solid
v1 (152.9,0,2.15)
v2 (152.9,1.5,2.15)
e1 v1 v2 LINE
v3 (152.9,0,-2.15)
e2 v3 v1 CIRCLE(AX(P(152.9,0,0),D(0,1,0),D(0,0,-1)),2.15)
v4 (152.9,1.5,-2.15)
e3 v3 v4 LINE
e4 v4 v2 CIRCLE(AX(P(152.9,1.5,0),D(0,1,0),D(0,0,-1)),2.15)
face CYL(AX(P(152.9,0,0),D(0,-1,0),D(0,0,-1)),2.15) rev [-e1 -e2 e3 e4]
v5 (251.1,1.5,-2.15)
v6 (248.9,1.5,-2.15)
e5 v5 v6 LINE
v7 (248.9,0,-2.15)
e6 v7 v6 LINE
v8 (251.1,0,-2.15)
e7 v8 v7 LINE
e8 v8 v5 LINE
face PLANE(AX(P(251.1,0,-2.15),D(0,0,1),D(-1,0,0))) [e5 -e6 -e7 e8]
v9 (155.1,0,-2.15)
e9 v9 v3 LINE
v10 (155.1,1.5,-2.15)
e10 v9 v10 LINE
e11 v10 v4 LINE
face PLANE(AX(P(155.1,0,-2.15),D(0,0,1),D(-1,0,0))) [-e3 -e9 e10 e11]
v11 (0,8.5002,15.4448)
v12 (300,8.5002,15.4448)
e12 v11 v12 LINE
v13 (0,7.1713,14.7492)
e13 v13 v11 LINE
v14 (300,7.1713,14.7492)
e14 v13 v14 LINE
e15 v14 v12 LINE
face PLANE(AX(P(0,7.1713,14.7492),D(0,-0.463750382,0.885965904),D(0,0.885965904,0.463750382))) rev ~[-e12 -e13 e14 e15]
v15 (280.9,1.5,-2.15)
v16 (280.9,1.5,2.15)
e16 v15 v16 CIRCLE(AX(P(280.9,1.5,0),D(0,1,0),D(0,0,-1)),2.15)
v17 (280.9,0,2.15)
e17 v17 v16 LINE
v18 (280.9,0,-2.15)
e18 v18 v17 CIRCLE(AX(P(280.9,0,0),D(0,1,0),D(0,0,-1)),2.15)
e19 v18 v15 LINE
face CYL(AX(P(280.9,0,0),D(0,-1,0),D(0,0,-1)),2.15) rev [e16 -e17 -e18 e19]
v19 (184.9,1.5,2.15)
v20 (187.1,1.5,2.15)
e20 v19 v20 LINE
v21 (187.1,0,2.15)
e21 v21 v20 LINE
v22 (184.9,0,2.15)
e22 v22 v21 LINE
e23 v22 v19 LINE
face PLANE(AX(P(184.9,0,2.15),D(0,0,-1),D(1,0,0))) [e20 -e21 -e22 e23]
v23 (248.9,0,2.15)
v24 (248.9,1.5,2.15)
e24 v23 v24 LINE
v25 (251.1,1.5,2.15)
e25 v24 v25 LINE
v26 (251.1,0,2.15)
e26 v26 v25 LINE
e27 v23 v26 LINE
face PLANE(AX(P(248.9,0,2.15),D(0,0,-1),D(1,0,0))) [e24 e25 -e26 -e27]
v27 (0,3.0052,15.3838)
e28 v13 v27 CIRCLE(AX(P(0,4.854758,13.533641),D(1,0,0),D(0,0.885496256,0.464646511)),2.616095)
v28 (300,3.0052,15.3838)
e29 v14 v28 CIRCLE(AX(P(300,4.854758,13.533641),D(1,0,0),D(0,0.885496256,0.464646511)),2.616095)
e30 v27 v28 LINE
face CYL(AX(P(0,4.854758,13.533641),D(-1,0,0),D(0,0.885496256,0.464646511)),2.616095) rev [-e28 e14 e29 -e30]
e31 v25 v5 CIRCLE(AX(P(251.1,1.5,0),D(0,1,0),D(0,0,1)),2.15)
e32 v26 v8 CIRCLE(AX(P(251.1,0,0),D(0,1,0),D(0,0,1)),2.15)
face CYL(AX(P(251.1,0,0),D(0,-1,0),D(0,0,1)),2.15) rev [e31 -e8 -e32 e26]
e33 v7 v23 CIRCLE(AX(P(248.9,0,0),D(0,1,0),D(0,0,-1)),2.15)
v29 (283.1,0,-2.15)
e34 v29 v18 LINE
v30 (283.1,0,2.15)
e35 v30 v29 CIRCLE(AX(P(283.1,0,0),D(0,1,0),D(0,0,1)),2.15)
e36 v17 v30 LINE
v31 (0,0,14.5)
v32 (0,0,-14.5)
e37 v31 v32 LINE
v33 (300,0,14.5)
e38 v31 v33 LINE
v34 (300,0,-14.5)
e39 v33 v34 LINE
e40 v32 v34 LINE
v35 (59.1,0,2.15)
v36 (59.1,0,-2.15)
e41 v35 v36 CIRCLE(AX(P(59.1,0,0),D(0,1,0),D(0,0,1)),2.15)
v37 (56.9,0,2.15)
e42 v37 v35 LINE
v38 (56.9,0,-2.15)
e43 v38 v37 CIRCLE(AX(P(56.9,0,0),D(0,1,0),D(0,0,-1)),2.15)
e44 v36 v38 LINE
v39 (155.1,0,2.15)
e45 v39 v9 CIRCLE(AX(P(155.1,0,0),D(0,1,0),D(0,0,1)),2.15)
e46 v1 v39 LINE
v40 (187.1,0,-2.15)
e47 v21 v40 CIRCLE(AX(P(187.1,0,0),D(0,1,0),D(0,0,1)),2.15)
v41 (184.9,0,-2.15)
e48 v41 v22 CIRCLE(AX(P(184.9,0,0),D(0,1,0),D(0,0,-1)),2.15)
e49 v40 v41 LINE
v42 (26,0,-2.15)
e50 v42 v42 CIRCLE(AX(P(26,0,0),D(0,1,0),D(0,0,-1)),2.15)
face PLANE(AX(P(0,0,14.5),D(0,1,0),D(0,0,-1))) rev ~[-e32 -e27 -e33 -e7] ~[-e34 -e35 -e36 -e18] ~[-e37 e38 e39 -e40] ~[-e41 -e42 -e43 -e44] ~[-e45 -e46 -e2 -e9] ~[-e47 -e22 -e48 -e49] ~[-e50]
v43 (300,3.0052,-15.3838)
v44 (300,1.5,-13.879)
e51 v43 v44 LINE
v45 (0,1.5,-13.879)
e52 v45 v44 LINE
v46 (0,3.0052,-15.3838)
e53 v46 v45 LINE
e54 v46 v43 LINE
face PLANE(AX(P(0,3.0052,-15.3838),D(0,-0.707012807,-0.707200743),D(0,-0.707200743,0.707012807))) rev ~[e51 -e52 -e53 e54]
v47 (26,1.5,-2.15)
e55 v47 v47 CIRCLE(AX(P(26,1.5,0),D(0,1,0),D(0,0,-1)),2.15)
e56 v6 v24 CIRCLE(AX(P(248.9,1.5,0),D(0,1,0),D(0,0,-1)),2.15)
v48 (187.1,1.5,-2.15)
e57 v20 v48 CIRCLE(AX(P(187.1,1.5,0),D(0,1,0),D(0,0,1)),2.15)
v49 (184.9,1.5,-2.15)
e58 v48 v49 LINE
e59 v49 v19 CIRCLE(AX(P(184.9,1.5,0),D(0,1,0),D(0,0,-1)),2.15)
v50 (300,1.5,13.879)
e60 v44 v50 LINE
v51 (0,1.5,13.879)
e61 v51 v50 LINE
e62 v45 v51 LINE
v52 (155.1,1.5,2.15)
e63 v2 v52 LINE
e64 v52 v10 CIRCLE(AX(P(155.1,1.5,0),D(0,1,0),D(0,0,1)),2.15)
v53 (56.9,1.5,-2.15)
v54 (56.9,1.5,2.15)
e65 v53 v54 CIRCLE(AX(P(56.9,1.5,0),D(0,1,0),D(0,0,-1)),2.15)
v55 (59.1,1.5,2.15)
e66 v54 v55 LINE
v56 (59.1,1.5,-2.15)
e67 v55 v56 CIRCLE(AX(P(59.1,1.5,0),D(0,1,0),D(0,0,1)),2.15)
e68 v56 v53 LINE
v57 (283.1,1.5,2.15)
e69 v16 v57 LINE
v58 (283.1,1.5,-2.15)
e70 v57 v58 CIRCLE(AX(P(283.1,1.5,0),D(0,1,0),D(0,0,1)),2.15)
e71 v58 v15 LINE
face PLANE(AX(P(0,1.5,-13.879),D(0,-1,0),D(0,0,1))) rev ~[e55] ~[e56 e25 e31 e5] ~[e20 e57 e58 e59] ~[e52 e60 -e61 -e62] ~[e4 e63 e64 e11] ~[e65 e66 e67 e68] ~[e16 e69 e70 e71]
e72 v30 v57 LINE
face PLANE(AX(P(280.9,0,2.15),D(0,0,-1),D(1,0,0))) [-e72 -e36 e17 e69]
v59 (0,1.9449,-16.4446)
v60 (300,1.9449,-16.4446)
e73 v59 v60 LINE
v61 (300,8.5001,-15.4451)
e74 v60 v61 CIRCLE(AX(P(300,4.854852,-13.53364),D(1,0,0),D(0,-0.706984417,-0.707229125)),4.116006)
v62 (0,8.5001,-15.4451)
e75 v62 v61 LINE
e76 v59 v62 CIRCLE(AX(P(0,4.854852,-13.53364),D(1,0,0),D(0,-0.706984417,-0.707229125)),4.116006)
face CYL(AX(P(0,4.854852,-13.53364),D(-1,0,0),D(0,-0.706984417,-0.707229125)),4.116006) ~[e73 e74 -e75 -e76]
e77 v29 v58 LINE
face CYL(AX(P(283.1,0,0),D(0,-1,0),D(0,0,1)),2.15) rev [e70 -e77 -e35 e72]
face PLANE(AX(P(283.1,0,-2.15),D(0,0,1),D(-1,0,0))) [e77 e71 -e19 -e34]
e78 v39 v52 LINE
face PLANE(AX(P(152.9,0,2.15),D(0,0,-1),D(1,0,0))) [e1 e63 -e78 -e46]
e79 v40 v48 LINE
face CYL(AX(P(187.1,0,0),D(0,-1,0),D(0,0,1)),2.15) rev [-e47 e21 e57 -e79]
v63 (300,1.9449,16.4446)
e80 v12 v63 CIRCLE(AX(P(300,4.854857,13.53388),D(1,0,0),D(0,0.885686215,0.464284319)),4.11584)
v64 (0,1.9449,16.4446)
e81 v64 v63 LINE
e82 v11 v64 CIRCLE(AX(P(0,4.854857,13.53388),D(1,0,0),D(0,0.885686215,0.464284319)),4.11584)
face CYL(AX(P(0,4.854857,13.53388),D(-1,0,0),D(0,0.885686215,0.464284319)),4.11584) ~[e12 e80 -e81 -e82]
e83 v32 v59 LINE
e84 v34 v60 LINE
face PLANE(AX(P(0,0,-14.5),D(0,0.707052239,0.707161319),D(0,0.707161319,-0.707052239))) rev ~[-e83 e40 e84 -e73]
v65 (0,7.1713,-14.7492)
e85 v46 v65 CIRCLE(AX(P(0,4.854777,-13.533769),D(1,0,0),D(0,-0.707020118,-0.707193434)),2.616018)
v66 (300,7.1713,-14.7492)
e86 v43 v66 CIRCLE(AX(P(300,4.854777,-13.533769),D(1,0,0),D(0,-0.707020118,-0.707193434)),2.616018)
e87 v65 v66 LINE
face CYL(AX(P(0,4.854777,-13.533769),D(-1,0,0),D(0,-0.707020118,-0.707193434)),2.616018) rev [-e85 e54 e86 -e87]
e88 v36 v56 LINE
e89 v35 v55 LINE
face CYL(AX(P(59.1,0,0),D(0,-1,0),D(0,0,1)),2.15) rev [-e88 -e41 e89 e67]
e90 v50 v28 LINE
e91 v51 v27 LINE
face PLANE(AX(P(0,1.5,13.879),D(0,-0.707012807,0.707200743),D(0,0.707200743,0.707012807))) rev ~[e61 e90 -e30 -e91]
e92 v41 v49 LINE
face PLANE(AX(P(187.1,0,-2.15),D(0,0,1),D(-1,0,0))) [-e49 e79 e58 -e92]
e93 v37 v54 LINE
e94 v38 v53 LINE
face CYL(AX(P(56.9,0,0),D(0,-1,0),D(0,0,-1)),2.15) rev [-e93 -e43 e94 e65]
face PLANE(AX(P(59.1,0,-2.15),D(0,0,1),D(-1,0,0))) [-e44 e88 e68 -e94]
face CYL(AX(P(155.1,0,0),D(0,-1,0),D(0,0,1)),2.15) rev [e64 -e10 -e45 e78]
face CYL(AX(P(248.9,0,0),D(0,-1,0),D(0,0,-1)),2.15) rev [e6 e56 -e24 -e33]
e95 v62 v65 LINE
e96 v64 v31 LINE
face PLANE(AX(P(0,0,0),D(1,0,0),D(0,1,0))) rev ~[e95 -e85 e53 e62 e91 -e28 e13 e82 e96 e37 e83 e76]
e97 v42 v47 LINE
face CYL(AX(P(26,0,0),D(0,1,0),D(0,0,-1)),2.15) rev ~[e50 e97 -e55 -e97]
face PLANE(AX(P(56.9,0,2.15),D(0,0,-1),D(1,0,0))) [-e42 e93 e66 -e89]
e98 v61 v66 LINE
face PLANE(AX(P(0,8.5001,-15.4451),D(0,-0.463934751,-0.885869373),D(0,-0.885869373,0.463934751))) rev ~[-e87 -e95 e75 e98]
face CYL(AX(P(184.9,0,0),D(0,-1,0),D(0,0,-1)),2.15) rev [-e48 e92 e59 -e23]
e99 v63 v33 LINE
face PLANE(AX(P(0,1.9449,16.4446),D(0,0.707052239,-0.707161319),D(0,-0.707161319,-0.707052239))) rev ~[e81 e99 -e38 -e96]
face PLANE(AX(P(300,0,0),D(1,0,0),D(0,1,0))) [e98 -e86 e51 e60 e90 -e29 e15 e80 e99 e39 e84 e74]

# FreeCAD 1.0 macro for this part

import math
import FreeCAD as App
import Part
import Sketcher
from FreeCAD import Vector

doc = App.newDocument("Part")
body = doc.addObject("PartDesign::Body", "Body")

sketch1 = doc.addObject("Sketcher::SketchObject", "Sketch")
body.addObject(sketch1)
sketch1.AttachmentSupport = (doc.YZ_Plane, [""])
sketch1.MapMode = "FlatFace"
sketch1.addGeometry([
    Part.LineSegment(Vector(7.1713, 14.7492, 0), Vector(8.5002, 15.4448, 0)),
    Part.ArcOfCircle(Part.Circle(Vector(4.8548, 13.5338, 0), Vector(0, 0, 1), 4.115928), math.radians(27.664531), math.radians(134.991141)),
    Part.LineSegment(Vector(1.9449, 16.4446, 0), Vector(0, 14.5, 0)),
    Part.LineSegment(Vector(0, 14.5, 0), Vector(0, -14.5, 0)),
    Part.LineSegment(Vector(0, -14.5, 0), Vector(1.9449, -16.4446, 0)),
    Part.ArcOfCircle(Part.Circle(Vector(4.8548, -13.5338, 0), Vector(0, 0, 1), 4.115856), math.radians(-134.991141), math.radians(-27.668876)),
    Part.LineSegment(Vector(8.5001, -15.4451, 0), Vector(7.1713, -14.7492, 0)),
    Part.ArcOfCircle(Part.Circle(Vector(4.8548, -13.5337, 0), Vector(0, 0, 1), 2.616083), math.radians(-134.992257), math.radians(-27.686626)),
    Part.LineSegment(Vector(3.0052, -15.3838, 0), Vector(1.5, -13.879, 0)),
    Part.LineSegment(Vector(1.5, -13.879, 0), Vector(1.5, 13.879, 0)),
    Part.LineSegment(Vector(1.5, 13.879, 0), Vector(3.0052, 15.3838, 0)),
    Part.ArcOfCircle(Part.Circle(Vector(4.8548, 13.5337, 0), Vector(0, 0, 1), 2.61603), math.radians(27.686626), math.radians(134.992257)),
], False)
sketch1.addConstraint([
    Sketcher.Constraint("Coincident", 0, 2, 1, 1),
    Sketcher.Constraint("Coincident", 1, 2, 2, 1),
    Sketcher.Constraint("Coincident", 2, 2, 3, 1),
    Sketcher.Constraint("Coincident", 3, 2, 4, 1),
    Sketcher.Constraint("Coincident", 4, 2, 5, 1),
    Sketcher.Constraint("Coincident", 5, 2, 6, 1),
    Sketcher.Constraint("Coincident", 6, 2, 7, 2),
    Sketcher.Constraint("Coincident", 7, 1, 8, 1),
    Sketcher.Constraint("Coincident", 8, 2, 9, 1),
    Sketcher.Constraint("Coincident", 9, 2, 10, 1),
    Sketcher.Constraint("Coincident", 10, 2, 11, 2),
    Sketcher.Constraint("Coincident", 11, 1, 0, 1),
    Sketcher.Constraint("Vertical", 3),
    Sketcher.Constraint("Vertical", 9),
    Sketcher.Constraint("Coincident", 7, 3, 5, 3),
    Sketcher.Constraint("Coincident", 11, 3, 1, 3),
    Sketcher.Constraint("PointOnObject", 2, 2, -2),
    Sketcher.Constraint("DistanceY", 3, 2, 3, 1, 29.0),
    Sketcher.Constraint("Radius", 1, 4.116),
    Sketcher.Constraint("Radius", 7, 2.616),
    Sketcher.Constraint("Radius", 11, 2.616),
    Sketcher.Constraint("Distance", 6, 1.5),
    Sketcher.Constraint("DistanceY", -1, 1, 2, 2, 14.5),
    Sketcher.Constraint("DistanceX", -1, 1, 5, 2, 8.5),
    Sketcher.Constraint("DistanceX", -1, 1, 8, 2, 1.5),
    Sketcher.Constraint("DistanceY", 9, 1, 9, 2, 27.758),
    Sketcher.Constraint("DistanceX", 1, 2, 1, 3, 2.91),
    Sketcher.Constraint("DistanceX", 1, 2, 7, 3, 2.91),
    Sketcher.Constraint("DistanceX", 4, 2, 5, 3, 2.91),
    Sketcher.Constraint("DistanceY", 7, 1, 5, 3, 1.85),
    Sketcher.Constraint("DistanceY", 1, 3, 10, 2, 1.85),
    Sketcher.Constraint("DistanceX", -1, 1, 4, 2, 1.945),
    Sketcher.Constraint("DistanceY", 5, 2, -1, 1, 15.445),
    Sketcher.Constraint("DistanceY", 8, 2, -1, 1, 13.879),
    Sketcher.Constraint("DistanceY", 1, 3, 0, 2, 1.911),
    Sketcher.Constraint("DistanceX", 7, 1, 6, 2, 4.166),
    Sketcher.Constraint("DistanceX", 11, 1, 0, 2, 1.329),
    Sketcher.Constraint("Distance", 2, 2.7503),
])
pad1 = doc.addObject("PartDesign::Pad", "Pad")
body.addObject(pad1)
pad1.Profile = sketch1
pad1.Length = 300

sketch2 = doc.addObject("Sketcher::SketchObject", "Sketch001")
body.addObject(sketch2)
sketch2.AttachmentSupport = (doc.XZ_Plane, [""])
sketch2.MapMode = "FlatFace"
sketch2.addGeometry(Part.Circle(Vector(26, 0, 0), Vector(0, 0, 1), 2.1), False)
sketch2.addConstraint([
    Sketcher.Constraint("PointOnObject", 0, 3, -1),
    Sketcher.Constraint("Diameter", 0, 4.3),
    Sketcher.Constraint("DistanceX", -1, 1, 0, 3, 26.0),
])
doc.recompute()
hole = doc.addObject("PartDesign::Hole", "Hole")
body.addObject(hole)
hole.Profile = sketch2
hole.ThreadType = "None"
hole.Diameter = 4.3
hole.DepthType = "Dimension"
hole.Depth = 1.5
hole.DrillPoint = "Flat"

sketch3 = doc.addObject("Sketcher::SketchObject", "Sketch002")
body.addObject(sketch3)
sketch3.AttachmentSupport = (doc.XZ_Plane, [""])
sketch3.MapMode = "FlatFace"
sketch3.addGeometry([
    Part.LineSegment(Vector(59.1, -2.1, 0), Vector(56.9, -2.1, 0)),
    Part.ArcOfCircle(Part.Circle(Vector(56.9, 0, 0), Vector(0, 0, 1), 2.1), math.radians(90), math.radians(270)),
    Part.LineSegment(Vector(56.9, 2.1, 0), Vector(59.1, 2.1, 0)),
    Part.ArcOfCircle(Part.Circle(Vector(59.1, 0, 0), Vector(0, 0, 1), 2.1), math.radians(-90), math.radians(90)),
], False)
sketch3.addConstraint([
    Sketcher.Constraint("Tangent", 0, 2, 1, 2),
    Sketcher.Constraint("Tangent", 1, 1, 2, 1),
    Sketcher.Constraint("Tangent", 2, 2, 3, 2),
    Sketcher.Constraint("Tangent", 3, 1, 0, 1),
    Sketcher.Constraint("Horizontal", 0),
    Sketcher.Constraint("Horizontal", 2),
    Sketcher.Constraint("PointOnObject", 1, 3, -1),
    Sketcher.Constraint("Radius", 1, 2.15),
    Sketcher.Constraint("DistanceX", 0, 2, 0, 1, 2.2),
    Sketcher.Constraint("DistanceX", -1, 1, 1, 3, 56.9),
])
pocket1 = doc.addObject("PartDesign::Pocket", "Pocket")
body.addObject(pocket1)
pocket1.Profile = sketch3
pocket1.Length = 1.5

sketch4 = doc.addObject("Sketcher::SketchObject", "Sketch003")
body.addObject(sketch4)
sketch4.AttachmentSupport = (doc.XZ_Plane, [""])
sketch4.MapMode = "FlatFace"
sketch4.addGeometry([
    Part.LineSegment(Vector(155.1, -2.1, 0), Vector(152.9, -2.1, 0)),
    Part.ArcOfCircle(Part.Circle(Vector(152.9, 0, 0), Vector(0, 0, 1), 2.1), math.radians(90), math.radians(270)),
    Part.LineSegment(Vector(152.9, 2.1, 0), Vector(155.1, 2.1, 0)),
    Part.ArcOfCircle(Part.Circle(Vector(155.1, 0, 0), Vector(0, 0, 1), 2.1), math.radians(-90), math.radians(90)),
], False)
sketch4.addConstraint([
    Sketcher.Constraint("Tangent", 0, 2, 1, 2),
    Sketcher.Constraint("Tangent", 1, 1, 2, 1),
    Sketcher.Constraint("Tangent", 2, 2, 3, 2),
    Sketcher.Constraint("Tangent", 3, 1, 0, 1),
    Sketcher.Constraint("Horizontal", 0),
    Sketcher.Constraint("Horizontal", 2),
    Sketcher.Constraint("PointOnObject", 1, 3, -1),
    Sketcher.Constraint("Radius", 1, 2.15),
    Sketcher.Constraint("DistanceX", 0, 2, 0, 1, 2.2),
    Sketcher.Constraint("DistanceX", -1, 1, 1, 3, 152.9),
])
pocket2 = doc.addObject("PartDesign::Pocket", "Pocket001")
body.addObject(pocket2)
pocket2.Profile = sketch4
pocket2.Length = 1.5

sketch5 = doc.addObject("Sketcher::SketchObject", "Sketch004")
body.addObject(sketch5)
sketch5.AttachmentSupport = (doc.XZ_Plane, [""])
sketch5.MapMode = "FlatFace"
sketch5.addGeometry([
    Part.LineSegment(Vector(187.1, -2.1, 0), Vector(184.9, -2.1, 0)),
    Part.ArcOfCircle(Part.Circle(Vector(184.9, 0, 0), Vector(0, 0, 1), 2.1), math.radians(90), math.radians(270)),
    Part.LineSegment(Vector(184.9, 2.1, 0), Vector(187.1, 2.1, 0)),
    Part.ArcOfCircle(Part.Circle(Vector(187.1, 0, 0), Vector(0, 0, 1), 2.1), math.radians(-90), math.radians(90)),
], False)
sketch5.addConstraint([
    Sketcher.Constraint("Tangent", 0, 2, 1, 2),
    Sketcher.Constraint("Tangent", 1, 1, 2, 1),
    Sketcher.Constraint("Tangent", 2, 2, 3, 2),
    Sketcher.Constraint("Tangent", 3, 1, 0, 1),
    Sketcher.Constraint("Horizontal", 0),
    Sketcher.Constraint("Horizontal", 2),
    Sketcher.Constraint("PointOnObject", 1, 3, -1),
    Sketcher.Constraint("Radius", 1, 2.15),
    Sketcher.Constraint("DistanceX", 0, 2, 0, 1, 2.2),
    Sketcher.Constraint("DistanceX", -1, 1, 1, 3, 184.9),
])
pocket3 = doc.addObject("PartDesign::Pocket", "Pocket002")
body.addObject(pocket3)
pocket3.Profile = sketch5
pocket3.Length = 1.5

sketch6 = doc.addObject("Sketcher::SketchObject", "Sketch005")
body.addObject(sketch6)
sketch6.AttachmentSupport = (doc.XZ_Plane, [""])
sketch6.MapMode = "FlatFace"
sketch6.addGeometry([
    Part.LineSegment(Vector(251.1, -2.1, 0), Vector(248.9, -2.1, 0)),
    Part.ArcOfCircle(Part.Circle(Vector(248.9, 0, 0), Vector(0, 0, 1), 2.1), math.radians(90), math.radians(270)),
    Part.LineSegment(Vector(248.9, 2.1, 0), Vector(251.1, 2.1, 0)),
    Part.ArcOfCircle(Part.Circle(Vector(251.1, 0, 0), Vector(0, 0, 1), 2.1), math.radians(-90), math.radians(90)),
], False)
sketch6.addConstraint([
    Sketcher.Constraint("Tangent", 0, 2, 1, 2),
    Sketcher.Constraint("Tangent", 1, 1, 2, 1),
    Sketcher.Constraint("Tangent", 2, 2, 3, 2),
    Sketcher.Constraint("Tangent", 3, 1, 0, 1),
    Sketcher.Constraint("Horizontal", 0),
    Sketcher.Constraint("Horizontal", 2),
    Sketcher.Constraint("PointOnObject", 1, 3, -1),
    Sketcher.Constraint("Radius", 1, 2.15),
    Sketcher.Constraint("DistanceX", 0, 2, 0, 1, 2.2),
    Sketcher.Constraint("DistanceX", -1, 1, 1, 3, 248.9),
])
pocket4 = doc.addObject("PartDesign::Pocket", "Pocket003")
body.addObject(pocket4)
pocket4.Profile = sketch6
pocket4.Length = 1.5

sketch7 = doc.addObject("Sketcher::SketchObject", "Sketch006")
body.addObject(sketch7)
sketch7.AttachmentSupport = (doc.XZ_Plane, [""])
sketch7.MapMode = "FlatFace"
sketch7.addGeometry([
    Part.LineSegment(Vector(283.1, -2.1, 0), Vector(280.9, -2.1, 0)),
    Part.ArcOfCircle(Part.Circle(Vector(280.9, 0, 0), Vector(0, 0, 1), 2.1), math.radians(90), math.radians(270)),
    Part.LineSegment(Vector(280.9, 2.1, 0), Vector(283.1, 2.1, 0)),
    Part.ArcOfCircle(Part.Circle(Vector(283.1, 0, 0), Vector(0, 0, 1), 2.1), math.radians(-90), math.radians(90)),
], False)
sketch7.addConstraint([
    Sketcher.Constraint("Tangent", 0, 2, 1, 2),
    Sketcher.Constraint("Tangent", 1, 1, 2, 1),
    Sketcher.Constraint("Tangent", 2, 2, 3, 2),
    Sketcher.Constraint("Tangent", 3, 1, 0, 1),
    Sketcher.Constraint("Horizontal", 0),
    Sketcher.Constraint("Horizontal", 2),
    Sketcher.Constraint("PointOnObject", 1, 3, -1),
    Sketcher.Constraint("Radius", 1, 2.15),
    Sketcher.Constraint("DistanceX", 0, 2, 0, 1, 2.2),
    Sketcher.Constraint("DistanceX", -1, 1, 1, 3, 280.9),
])
pocket5 = doc.addObject("PartDesign::Pocket", "Pocket004")
body.addObject(pocket5)
pocket5.Profile = sketch7
pocket5.Length = 1.5

doc.recompute()
